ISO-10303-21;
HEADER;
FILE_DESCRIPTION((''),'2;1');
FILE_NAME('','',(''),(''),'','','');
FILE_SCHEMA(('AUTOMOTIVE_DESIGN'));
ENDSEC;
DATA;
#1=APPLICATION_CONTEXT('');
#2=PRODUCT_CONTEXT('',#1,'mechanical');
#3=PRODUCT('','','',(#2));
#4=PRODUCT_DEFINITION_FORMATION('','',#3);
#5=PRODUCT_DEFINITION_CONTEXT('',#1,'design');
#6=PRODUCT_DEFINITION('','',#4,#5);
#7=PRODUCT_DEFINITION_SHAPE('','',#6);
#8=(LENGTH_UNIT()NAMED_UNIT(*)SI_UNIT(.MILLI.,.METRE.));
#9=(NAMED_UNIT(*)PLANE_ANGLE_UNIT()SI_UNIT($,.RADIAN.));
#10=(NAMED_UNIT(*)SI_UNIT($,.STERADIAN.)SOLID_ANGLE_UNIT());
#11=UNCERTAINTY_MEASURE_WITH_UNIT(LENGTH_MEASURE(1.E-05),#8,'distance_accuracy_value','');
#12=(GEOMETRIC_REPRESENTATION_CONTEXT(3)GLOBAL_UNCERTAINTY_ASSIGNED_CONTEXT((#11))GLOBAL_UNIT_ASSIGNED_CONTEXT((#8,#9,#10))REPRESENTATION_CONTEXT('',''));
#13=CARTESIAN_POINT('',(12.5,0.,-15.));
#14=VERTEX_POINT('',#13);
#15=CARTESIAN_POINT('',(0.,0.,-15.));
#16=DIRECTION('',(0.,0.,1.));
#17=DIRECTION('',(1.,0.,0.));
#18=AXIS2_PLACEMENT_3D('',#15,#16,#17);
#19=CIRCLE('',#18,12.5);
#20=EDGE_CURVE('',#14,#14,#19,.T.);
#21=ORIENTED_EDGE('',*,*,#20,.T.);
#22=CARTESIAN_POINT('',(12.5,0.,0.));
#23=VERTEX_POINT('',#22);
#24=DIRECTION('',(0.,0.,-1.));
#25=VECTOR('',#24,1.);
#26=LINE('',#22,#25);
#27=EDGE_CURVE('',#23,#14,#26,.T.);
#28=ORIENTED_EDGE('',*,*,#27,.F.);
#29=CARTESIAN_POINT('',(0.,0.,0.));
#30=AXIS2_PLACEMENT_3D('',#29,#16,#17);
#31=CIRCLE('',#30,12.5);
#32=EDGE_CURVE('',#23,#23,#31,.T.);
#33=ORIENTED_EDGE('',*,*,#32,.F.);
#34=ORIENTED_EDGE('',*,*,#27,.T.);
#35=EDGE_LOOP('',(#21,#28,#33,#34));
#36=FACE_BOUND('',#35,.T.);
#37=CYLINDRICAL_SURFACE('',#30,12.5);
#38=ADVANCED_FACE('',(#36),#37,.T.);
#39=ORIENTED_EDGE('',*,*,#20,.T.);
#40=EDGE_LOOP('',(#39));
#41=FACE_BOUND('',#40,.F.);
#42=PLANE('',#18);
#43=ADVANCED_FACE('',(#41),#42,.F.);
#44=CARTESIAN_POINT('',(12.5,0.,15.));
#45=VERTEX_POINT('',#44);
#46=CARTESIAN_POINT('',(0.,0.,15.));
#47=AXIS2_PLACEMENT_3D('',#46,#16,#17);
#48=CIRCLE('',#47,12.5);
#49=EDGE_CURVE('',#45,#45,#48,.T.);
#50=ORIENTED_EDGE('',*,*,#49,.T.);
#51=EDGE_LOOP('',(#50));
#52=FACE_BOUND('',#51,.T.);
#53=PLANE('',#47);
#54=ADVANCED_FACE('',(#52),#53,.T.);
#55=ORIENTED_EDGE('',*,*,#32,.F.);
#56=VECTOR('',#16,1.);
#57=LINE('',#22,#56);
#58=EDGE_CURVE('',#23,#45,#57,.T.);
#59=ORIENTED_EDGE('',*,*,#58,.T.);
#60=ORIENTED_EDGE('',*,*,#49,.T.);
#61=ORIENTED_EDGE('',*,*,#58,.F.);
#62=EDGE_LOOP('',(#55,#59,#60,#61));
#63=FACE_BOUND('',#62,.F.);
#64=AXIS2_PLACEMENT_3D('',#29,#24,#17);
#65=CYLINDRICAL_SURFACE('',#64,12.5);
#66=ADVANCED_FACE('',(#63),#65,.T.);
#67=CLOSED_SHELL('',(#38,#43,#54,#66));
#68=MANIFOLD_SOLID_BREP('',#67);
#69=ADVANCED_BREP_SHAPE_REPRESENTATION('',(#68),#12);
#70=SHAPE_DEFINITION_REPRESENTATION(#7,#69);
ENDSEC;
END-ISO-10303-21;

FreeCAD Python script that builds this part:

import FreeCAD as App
import Part
import Sketcher

V = App.Vector

doc = App.newDocument("Part")
body = doc.addObject("PartDesign::Body", "Body")

sketch1 = body.newObject("Sketcher::SketchObject", "Sketch")
sketch1.AttachmentSupport = (doc.getObject("XY_Plane"), [""])
sketch1.MapMode = "FlatFace"
sketch1.addGeometry(Part.Circle(V(0, 0, 0), V(0, 0, 1), 12), False)
sketch1.addConstraint([
    Sketcher.Constraint("Coincident", 0, 3, -1, 1),
    Sketcher.Constraint("Diameter", 0, 25.0),
])
pad1 = body.newObject("PartDesign::Pad", "Pad")
pad1.Profile = sketch1
pad1.Length = 30
pad1.Midplane = True

doc.recompute()
